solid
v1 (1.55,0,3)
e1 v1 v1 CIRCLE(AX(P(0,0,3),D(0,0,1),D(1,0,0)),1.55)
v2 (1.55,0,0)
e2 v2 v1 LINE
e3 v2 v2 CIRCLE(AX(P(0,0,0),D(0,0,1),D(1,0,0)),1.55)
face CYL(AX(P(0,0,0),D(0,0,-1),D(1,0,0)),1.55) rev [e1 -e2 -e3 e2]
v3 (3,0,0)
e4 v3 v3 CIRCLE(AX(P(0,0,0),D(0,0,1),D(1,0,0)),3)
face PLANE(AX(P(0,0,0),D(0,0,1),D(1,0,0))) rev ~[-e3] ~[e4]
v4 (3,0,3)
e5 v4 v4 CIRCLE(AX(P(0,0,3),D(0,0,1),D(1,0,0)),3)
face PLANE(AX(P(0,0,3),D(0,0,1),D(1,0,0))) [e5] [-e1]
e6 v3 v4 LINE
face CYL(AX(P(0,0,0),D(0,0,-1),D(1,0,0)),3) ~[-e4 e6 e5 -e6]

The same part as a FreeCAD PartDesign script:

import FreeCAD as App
import Part
import Sketcher

V = App.Vector
Q = App.Units.Quantity

doc = App.newDocument("Part")
body = doc.addObject("PartDesign::Body", "Body")

# Sketch on XY plane
sketch1 = body.newObject("Sketcher::SketchObject", "Sketch")
sketch1.AttachmentSupport = (doc.getObject("XY_Plane"), [""])
sketch1.MapMode = "FlatFace"
sketch1.addGeometry([
    Part.Circle(V(0, 0, 0), V(0, 0, 1), 3),
    Part.Circle(V(0, 0, 0), V(0, 0, 1), 1.6),
], False)
sketch1.addConstraint([
    Sketcher.Constraint("Coincident", 0, 3, -1, 1),
    Sketcher.Constraint("Coincident", 1, 3, -1, 1),
    Sketcher.Constraint("Diameter", 0, Q("6 mm")),
    Sketcher.Constraint("Diameter", 1, Q("3.1 mm")),
])
pad1 = body.newObject("PartDesign::Pad", "Pad")
pad1.Profile = sketch1
pad1.Length = 3

doc.recompute()
